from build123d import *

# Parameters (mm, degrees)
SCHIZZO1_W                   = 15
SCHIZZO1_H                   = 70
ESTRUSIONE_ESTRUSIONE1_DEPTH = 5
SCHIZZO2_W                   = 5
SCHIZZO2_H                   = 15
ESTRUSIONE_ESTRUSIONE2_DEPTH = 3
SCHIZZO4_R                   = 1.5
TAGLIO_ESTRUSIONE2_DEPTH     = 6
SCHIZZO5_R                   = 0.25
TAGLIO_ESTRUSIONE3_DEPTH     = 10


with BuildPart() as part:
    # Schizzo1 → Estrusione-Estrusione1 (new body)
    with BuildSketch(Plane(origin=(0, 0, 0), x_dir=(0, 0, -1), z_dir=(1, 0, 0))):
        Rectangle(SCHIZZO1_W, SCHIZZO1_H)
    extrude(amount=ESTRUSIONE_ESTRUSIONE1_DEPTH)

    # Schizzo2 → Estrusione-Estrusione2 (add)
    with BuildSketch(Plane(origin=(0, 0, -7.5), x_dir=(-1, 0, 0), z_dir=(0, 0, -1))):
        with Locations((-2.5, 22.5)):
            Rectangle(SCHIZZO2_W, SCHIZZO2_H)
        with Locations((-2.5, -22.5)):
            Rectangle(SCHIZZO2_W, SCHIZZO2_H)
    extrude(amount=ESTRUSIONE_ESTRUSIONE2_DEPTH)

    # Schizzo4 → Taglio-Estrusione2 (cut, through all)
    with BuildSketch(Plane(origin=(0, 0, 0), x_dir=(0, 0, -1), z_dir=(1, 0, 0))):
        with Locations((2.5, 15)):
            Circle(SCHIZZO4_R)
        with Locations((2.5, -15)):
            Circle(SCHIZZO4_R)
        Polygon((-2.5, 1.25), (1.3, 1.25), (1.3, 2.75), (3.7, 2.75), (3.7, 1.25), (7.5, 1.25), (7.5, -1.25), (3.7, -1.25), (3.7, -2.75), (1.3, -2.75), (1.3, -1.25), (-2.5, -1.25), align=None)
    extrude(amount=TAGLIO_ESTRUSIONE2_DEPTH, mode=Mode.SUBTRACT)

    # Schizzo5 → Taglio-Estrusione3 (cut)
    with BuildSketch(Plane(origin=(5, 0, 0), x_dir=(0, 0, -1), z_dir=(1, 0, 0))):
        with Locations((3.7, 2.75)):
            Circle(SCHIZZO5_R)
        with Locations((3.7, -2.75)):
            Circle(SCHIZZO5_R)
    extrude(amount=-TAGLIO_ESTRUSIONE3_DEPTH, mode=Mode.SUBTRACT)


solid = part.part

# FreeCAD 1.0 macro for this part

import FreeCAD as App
import Part
import Sketcher

V = App.Vector
Q = App.Units.Quantity


def add_polygon(sketch, points):
    """Adds a closed chain of lines whose ends are joined by coincident constraints."""
    first, n = sketch.GeometryCount, len(points)
    for a, b in zip(points, points[1:] + points[:1]):
        sketch.addGeometry(Part.LineSegment(App.Vector(*a, 0), App.Vector(*b, 0)), False)
    for i in range(n):
        sketch.addConstraint(Sketcher.Constraint("Coincident", first + i, 2, first + (i + 1) % n, 1))

doc = App.newDocument("Part")
body = doc.addObject("PartDesign::Body", "Body")

# Sketch on YZ plane
sketch1 = body.newObject("Sketcher::SketchObject", "Sketch")
sketch1.AttachmentSupport = (doc.getObject("YZ_Plane"), [""])
sketch1.MapMode = "FlatFace"
add_polygon(sketch1, [(35, 7.5), (-35, 7.5), (-35, -7.5), (35, -7.5)])  # lines 0-3
sketch1.addConstraint([
    Sketcher.Constraint("Horizontal", 0),
    Sketcher.Constraint("Vertical", 1),
    Sketcher.Constraint("Horizontal", 2),
    Sketcher.Constraint("Vertical", 3),
    Sketcher.Constraint("Symmetric", 0, 2, 2, 2, -1, 1),
    Sketcher.Constraint("DistanceX", 0, 2, 0, 1, Q("70 mm")),
    Sketcher.Constraint("DistanceY", 1, 2, 1, 1, Q("15 mm")),
])
pad1 = body.newObject("PartDesign::Pad", "Pad")
pad1.Profile = sketch1
pad1.Length = 5

# Sketch on XY plane
sketch2 = body.newObject("Sketcher::SketchObject", "Sketch001")
sketch2.AttachmentSupport = (doc.getObject("XY_Plane"), [""])
sketch2.MapMode = "FlatFace"
sketch2.AttachmentOffset = App.Placement(V(0, 0, -7.5), App.Rotation())
add_polygon(sketch2, [(5, 30), (5, 15), (0, 15), (0, 30)])  # lines 0-3
add_polygon(sketch2, [(5, -15), (5, -30), (0, -30), (0, -15)])  # lines 4-7
sketch2.addConstraint([
    Sketcher.Constraint("Vertical", 0),
    Sketcher.Constraint("Horizontal", 1),
    Sketcher.Constraint("Vertical", 2),
    Sketcher.Constraint("Horizontal", 3),
    Sketcher.Constraint("Vertical", 4),
    Sketcher.Constraint("Horizontal", 5),
    Sketcher.Constraint("Vertical", 6),
    Sketcher.Constraint("Horizontal", 7),
    Sketcher.Constraint("Symmetric", 2, 2, 5, 2, -1, 1),
    Sketcher.Constraint("Symmetric", 1, 2, 6, 2, -1),
    Sketcher.Constraint("Vertical", 3, 2, 4, 2),
    Sketcher.Constraint("DistanceX", 1, 2, 1, 1, Q("5 mm")),
    Sketcher.Constraint("DistanceY", 0, 2, 0, 1, Q("15 mm")),
    Sketcher.Constraint("DistanceY", -1, 1, 0, 2, Q("15 mm")),
])
pad2 = body.newObject("PartDesign::Pad", "Pad001")
pad2.Profile = sketch2
pad2.Length = 3
pad2.Reversed = True

# Sketch on YZ plane
sketch3 = body.newObject("Sketcher::SketchObject", "Sketch002")
sketch3.AttachmentSupport = (doc.getObject("YZ_Plane"), [""])
sketch3.MapMode = "FlatFace"
sketch3.addGeometry(Part.Circle(V(15, -2.5, 0), V(0, 0, 1), 1.5), False)  # 0
sketch3.addGeometry(Part.Circle(V(-15, -2.5, 0), V(0, 0, 1), 1.5), False)  # 1
add_polygon(sketch3, [(1.25, -1.3), (1.25, 2.5), (-1.25, 2.5), (-1.25, -1.3), (-2.75, -1.3), (-2.75, -3.7), (-1.25, -3.7), (-1.25, -7.5), (1.25, -7.5), (1.25, -3.7), (2.75, -3.7), (2.75, -1.3)])  # lines 2-13
sketch3.addConstraint([
    Sketcher.Constraint("Vertical", 2),
    Sketcher.Constraint("Horizontal", 3),
    Sketcher.Constraint("Vertical", 4),
    Sketcher.Constraint("Horizontal", 5),
    Sketcher.Constraint("Vertical", 6),
    Sketcher.Constraint("Horizontal", 7),
    Sketcher.Constraint("Vertical", 8),
    Sketcher.Constraint("Horizontal", 9),
    Sketcher.Constraint("Vertical", 10),
    Sketcher.Constraint("Horizontal", 11),
    Sketcher.Constraint("Vertical", 12),
    Sketcher.Constraint("Horizontal", 13),
    Sketcher.Constraint("Equal", 0, 1),
    Sketcher.Constraint("Symmetric", 0, 3, 1, 3, -2),
    Sketcher.Constraint("Symmetric", 7, 2, 10, 2, -2),
    Sketcher.Constraint("Symmetric", 5, 2, 12, 2, -2),
    Sketcher.Constraint("Vertical", 4, 2, 7, 2),
    Sketcher.Constraint("Vertical", 2, 2, 9, 2),
    Sketcher.Constraint("Equal", 4, 8),
    Sketcher.Constraint("Diameter", 0, Q("3 mm")),
    Sketcher.Constraint("DistanceX", 3, 2, 3, 1, Q("2.5 mm")),
    Sketcher.Constraint("DistanceX", 5, 2, 5, 1, Q("1.5 mm")),
    Sketcher.Constraint("DistanceY", 2, 1, 2, 2, Q("3.8 mm")),
    Sketcher.Constraint("DistanceY", 6, 2, 6, 1, Q("2.4 mm")),
    Sketcher.Constraint("DistanceX", -1, 1, 0, 3, Q("15 mm")),
    Sketcher.Constraint("DistanceY", 0, 3, 2, 2, Q("5 mm")),
    Sketcher.Constraint("DistanceY", 0, 3, -1, 1, Q("2.5 mm")),
])
pocket1 = body.newObject("PartDesign::Pocket", "Pocket")
pocket1.Profile = sketch3
pocket1.Type = "ThroughAll"
pocket1.Reversed = True

# Sketch on YZ plane
sketch4 = body.newObject("Sketcher::SketchObject", "Sketch003")
sketch4.AttachmentSupport = (doc.getObject("YZ_Plane"), [""])
sketch4.MapMode = "FlatFace"
sketch4.AttachmentOffset = App.Placement(V(0, 0, 5), App.Rotation())
sketch4.addGeometry([
    Part.Circle(V(2.75, -3.7, 0), V(0, 0, 1), 0.25),
    Part.Circle(V(-2.75, -3.7, 0), V(0, 0, 1), 0.25),
], False)
sketch4.addConstraint([
    Sketcher.Constraint("Equal", 0, 1),
    Sketcher.Constraint("Symmetric", 0, 3, 1, 3, -2),
    Sketcher.Constraint("Diameter", 0, Q("0.5 mm")),
    Sketcher.Constraint("DistanceY", 0, 3, -1, 1, Q("3.7 mm")),
    Sketcher.Constraint("DistanceX", 1, 3, 0, 3, Q("5.5 mm")),
])
pocket2 = body.newObject("PartDesign::Pocket", "Pocket001")
pocket2.Profile = sketch4
pocket2.Length = 10

doc.recompute()
